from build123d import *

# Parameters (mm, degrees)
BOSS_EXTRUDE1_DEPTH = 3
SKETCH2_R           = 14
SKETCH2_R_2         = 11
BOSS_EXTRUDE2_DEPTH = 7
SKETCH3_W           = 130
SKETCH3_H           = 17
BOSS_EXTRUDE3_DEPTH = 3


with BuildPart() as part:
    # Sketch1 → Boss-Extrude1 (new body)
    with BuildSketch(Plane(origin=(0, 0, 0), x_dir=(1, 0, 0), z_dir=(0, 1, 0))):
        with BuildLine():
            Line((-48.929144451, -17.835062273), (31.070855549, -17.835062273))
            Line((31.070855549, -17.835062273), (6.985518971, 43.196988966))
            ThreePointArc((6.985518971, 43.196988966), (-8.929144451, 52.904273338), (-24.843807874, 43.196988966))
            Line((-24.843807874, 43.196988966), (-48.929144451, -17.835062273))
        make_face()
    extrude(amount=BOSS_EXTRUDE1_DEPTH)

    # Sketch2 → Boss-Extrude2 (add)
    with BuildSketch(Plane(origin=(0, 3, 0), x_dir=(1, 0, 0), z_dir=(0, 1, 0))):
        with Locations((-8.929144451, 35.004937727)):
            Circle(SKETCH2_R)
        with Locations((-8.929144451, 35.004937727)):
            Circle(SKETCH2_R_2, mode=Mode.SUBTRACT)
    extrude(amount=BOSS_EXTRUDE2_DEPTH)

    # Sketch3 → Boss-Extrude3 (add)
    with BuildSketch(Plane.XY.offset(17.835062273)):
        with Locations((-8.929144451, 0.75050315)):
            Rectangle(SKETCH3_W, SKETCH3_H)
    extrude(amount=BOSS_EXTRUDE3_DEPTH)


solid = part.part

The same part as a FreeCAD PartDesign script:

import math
import FreeCAD as App
import Part
import Sketcher

doc = App.newDocument("Part")
params = doc.addObject("Spreadsheet::Sheet", "Params")
for row, (alias, value) in enumerate([
    ("sketch1_width", "80 mm"),
    ("pad1_length", "3 mm"),
    ("sketch2_diameter", "28 mm"),
    ("sketch2_diameter2", "22 mm"),
    ("pad2_length", "7 mm"),
    ("sketch3_width", "130 mm"),
    ("sketch3_height", "17 mm"),
    ("pad3_length", "3 mm"),
], start=1):
    params.set(f"A{row}", alias)
    params.set(f"B{row}", "=" + value)
    params.setAlias(f"B{row}", alias)

body = doc.addObject("PartDesign::Body", "Body")

# Sketch on XZ plane
sketch1 = doc.addObject("Sketcher::SketchObject", "Sketch")
body.addObject(sketch1)
sketch1.AttachmentSupport = (doc.XZ_Plane, [""])
sketch1.MapMode = "FlatFace"
sketch1.addGeometry(Part.LineSegment(App.Vector(-49, 18, 0), App.Vector(31, 18, 0)), False)
sketch1.addGeometry(Part.LineSegment(App.Vector(31, 18, 0), App.Vector(7, -43, 0)), False)
sketch1.addGeometry(Part.ArcOfCircle(Part.Circle(App.Vector(-9, -35, 0), App.Vector(0, 0, 1), 18), math.radians(-153), math.radians(-27)), False)
sketch1.addGeometry(Part.LineSegment(App.Vector(-25, -43, 0), App.Vector(-49, 18, 0)), False)
sketch1.addConstraint(Sketcher.Constraint("Coincident", 0, 2, 1, 1))
sketch1.addConstraint(Sketcher.Constraint("Coincident", 1, 2, 2, 2))
sketch1.addConstraint(Sketcher.Constraint("Coincident", 2, 1, 3, 1))
sketch1.addConstraint(Sketcher.Constraint("Coincident", 3, 2, 0, 1))
sketch1.addConstraint(Sketcher.Constraint("Horizontal", 0))
sketch1.addConstraint(Sketcher.Constraint("Horizontal", 1, 2, 2, 1))
sketch1.addConstraint(Sketcher.Constraint("Equal", 1, 3))
sketch1.addConstraint(Sketcher.Constraint("DistanceX", 0, 1, 0, 2, 80.0))
sketch1.addConstraint(Sketcher.Constraint("DistanceY", 2, 3, 0, 2, 52.84))
sketch1.addConstraint(Sketcher.Constraint("Radius", 2, 17.899336))
sketch1.addConstraint(Sketcher.Constraint("Distance", 1, 65.612611))
sketch1.addConstraint(Sketcher.Constraint("DistanceX", -1, 1, 1, 2, 6.985519))
sketch1.addConstraint(Sketcher.Constraint("DistanceY", 1, 2, -1, 1, 43.196989))
sketch1.setExpression("Constraints[7]", "Params.sketch1_width")
pad1 = doc.addObject("PartDesign::Pad", "Pad")
body.addObject(pad1)
pad1.Profile = sketch1
pad1.setExpression("Length", "Params.pad1_length")
pad1.Reversed = True

# Sketch on XZ plane
sketch2 = doc.addObject("Sketcher::SketchObject", "Sketch001")
body.addObject(sketch2)
sketch2.AttachmentSupport = (doc.XZ_Plane, [""])
sketch2.MapMode = "FlatFace"
sketch2.AttachmentOffset = App.Placement(App.Vector(0, 0, -3), App.Rotation())
sketch2.addGeometry(Part.Circle(App.Vector(-9, -35, 0), App.Vector(0, 0, 1), 14), False)
sketch2.addGeometry(Part.Circle(App.Vector(-9, -35, 0), App.Vector(0, 0, 1), 11), False)
sketch2.addConstraint(Sketcher.Constraint("Coincident", 1, 3, 0, 3))
sketch2.addConstraint(Sketcher.Constraint("Diameter", 0, 28.0))
sketch2.addConstraint(Sketcher.Constraint("Diameter", 1, 22.0))
sketch2.addConstraint(Sketcher.Constraint("DistanceX", 0, 3, -1, 1, 8.929144))
sketch2.addConstraint(Sketcher.Constraint("DistanceY", 0, 3, -1, 1, 35.004938))
sketch2.setExpression("Constraints[1]", "Params.sketch2_diameter")
sketch2.setExpression("Constraints[2]", "Params.sketch2_diameter2")
pad2 = doc.addObject("PartDesign::Pad", "Pad001")
body.addObject(pad2)
pad2.Profile = sketch2
pad2.setExpression("Length", "Params.pad2_length")
pad2.Reversed = True

# Sketch on XY plane
sketch3 = doc.addObject("Sketcher::SketchObject", "Sketch002")
body.addObject(sketch3)
sketch3.AttachmentSupport = (doc.XY_Plane, [""])
sketch3.MapMode = "FlatFace"
sketch3.AttachmentOffset = App.Placement(App.Vector(0, 0, 17.835062), App.Rotation())
sketch3.addGeometry(Part.LineSegment(App.Vector(-74, 9, 0), App.Vector(-74, -8, 0)), False)
sketch3.addGeometry(Part.LineSegment(App.Vector(-74, -8, 0), App.Vector(56, -8, 0)), False)
sketch3.addGeometry(Part.LineSegment(App.Vector(56, -8, 0), App.Vector(56, 9, 0)), False)
sketch3.addGeometry(Part.LineSegment(App.Vector(56, 9, 0), App.Vector(-74, 9, 0)), False)
sketch3.addConstraint(Sketcher.Constraint("Coincident", 0, 2, 1, 1))
sketch3.addConstraint(Sketcher.Constraint("Coincident", 1, 2, 2, 1))
sketch3.addConstraint(Sketcher.Constraint("Coincident", 2, 2, 3, 1))
sketch3.addConstraint(Sketcher.Constraint("Coincident", 3, 2, 0, 1))
sketch3.addConstraint(Sketcher.Constraint("Vertical", 0))
sketch3.addConstraint(Sketcher.Constraint("Horizontal", 1))
sketch3.addConstraint(Sketcher.Constraint("Vertical", 2))
sketch3.addConstraint(Sketcher.Constraint("Horizontal", 3))
sketch3.addConstraint(Sketcher.Constraint("DistanceX", 1, 1, 1, 2, 130.0))
sketch3.addConstraint(Sketcher.Constraint("DistanceY", 0, 2, 0, 1, 17.0))
sketch3.addConstraint(Sketcher.Constraint("DistanceX", 0, 2, -1, 1, 73.929144))
sketch3.addConstraint(Sketcher.Constraint("DistanceY", 0, 2, -1, 1, 7.749497))
sketch3.setExpression("Constraints[8]", "Params.sketch3_width")
sketch3.setExpression("Constraints[9]", "Params.sketch3_height")
pad3 = doc.addObject("PartDesign::Pad", "Pad002")
body.addObject(pad3)
pad3.Profile = sketch3
pad3.setExpression("Length", "Params.pad3_length")

doc.recompute()
